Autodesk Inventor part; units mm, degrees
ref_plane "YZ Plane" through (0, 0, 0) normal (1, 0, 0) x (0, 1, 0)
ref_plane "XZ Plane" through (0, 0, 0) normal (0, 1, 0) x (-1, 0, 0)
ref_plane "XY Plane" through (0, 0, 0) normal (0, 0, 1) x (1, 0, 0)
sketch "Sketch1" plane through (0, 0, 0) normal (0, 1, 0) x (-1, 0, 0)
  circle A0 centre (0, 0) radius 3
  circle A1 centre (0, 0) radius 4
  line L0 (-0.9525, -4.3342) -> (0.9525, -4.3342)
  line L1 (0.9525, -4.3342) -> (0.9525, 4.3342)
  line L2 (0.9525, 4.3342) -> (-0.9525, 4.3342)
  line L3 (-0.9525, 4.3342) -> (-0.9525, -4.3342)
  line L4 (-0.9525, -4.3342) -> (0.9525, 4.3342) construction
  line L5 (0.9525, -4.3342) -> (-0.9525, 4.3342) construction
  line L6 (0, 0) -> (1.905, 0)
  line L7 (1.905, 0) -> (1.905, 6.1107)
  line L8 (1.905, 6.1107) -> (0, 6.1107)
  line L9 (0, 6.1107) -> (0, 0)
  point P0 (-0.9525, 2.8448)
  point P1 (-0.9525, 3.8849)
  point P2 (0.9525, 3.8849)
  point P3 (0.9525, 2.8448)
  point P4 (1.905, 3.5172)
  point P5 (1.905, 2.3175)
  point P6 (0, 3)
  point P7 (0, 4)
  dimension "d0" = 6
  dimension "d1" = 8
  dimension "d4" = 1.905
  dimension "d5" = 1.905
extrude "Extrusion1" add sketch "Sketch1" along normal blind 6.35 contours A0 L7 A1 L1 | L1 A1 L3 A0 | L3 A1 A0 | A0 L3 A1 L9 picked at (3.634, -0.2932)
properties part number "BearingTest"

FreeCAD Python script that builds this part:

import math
import FreeCAD as App
import Part
import Sketcher

V = App.Vector

doc = App.newDocument("Part")
body = doc.addObject("PartDesign::Body", "Body")

sketch1 = body.newObject("Sketcher::SketchObject", "Sketch")
sketch1.AttachmentSupport = (doc.getObject("XZ_Plane"), [""])
sketch1.MapMode = "FlatFace"
sketch1.addGeometry([
    Part.ArcOfCircle(Part.Circle(V(0, 0, 0), V(0, 0, 1), 3), math.radians(129.419984), math.radians(450)),
    Part.LineSegment(V(0, 3, 0), V(0, 4, 0)),
    Part.ArcOfCircle(Part.Circle(V(0, 0, 0), V(0, 0, 1), 4), math.radians(118.440769), math.radians(450)),
    Part.LineSegment(V(-1.905, 3.51724, 0), V(-1.905, 2.317536, 0)),
], False)
sketch1.addConstraint([
    Sketcher.Constraint("Coincident", 0, 2, 1, 1),
    Sketcher.Constraint("Coincident", 1, 2, 2, 2),
    Sketcher.Constraint("Coincident", 2, 1, 3, 1),
    Sketcher.Constraint("Coincident", 3, 2, 0, 1),
    Sketcher.Constraint("Vertical", 1),
    Sketcher.Constraint("Vertical", 3),
    Sketcher.Constraint("Coincident", 0, 3, -1, 1),
    Sketcher.Constraint("Coincident", 2, 3, -1, 1),
    Sketcher.Constraint("PointOnObject", 0, 2, -2),
    Sketcher.Constraint("Radius", 0, 3.0),
    Sketcher.Constraint("Radius", 2, 4.0),
    Sketcher.Constraint("DistanceX", 2, 1, -1, 1, 1.905),
])
pad1 = body.newObject("PartDesign::Pad", "Pad")
pad1.Profile = sketch1
pad1.Length = 6.35
pad1.Reversed = True

doc.recompute()
